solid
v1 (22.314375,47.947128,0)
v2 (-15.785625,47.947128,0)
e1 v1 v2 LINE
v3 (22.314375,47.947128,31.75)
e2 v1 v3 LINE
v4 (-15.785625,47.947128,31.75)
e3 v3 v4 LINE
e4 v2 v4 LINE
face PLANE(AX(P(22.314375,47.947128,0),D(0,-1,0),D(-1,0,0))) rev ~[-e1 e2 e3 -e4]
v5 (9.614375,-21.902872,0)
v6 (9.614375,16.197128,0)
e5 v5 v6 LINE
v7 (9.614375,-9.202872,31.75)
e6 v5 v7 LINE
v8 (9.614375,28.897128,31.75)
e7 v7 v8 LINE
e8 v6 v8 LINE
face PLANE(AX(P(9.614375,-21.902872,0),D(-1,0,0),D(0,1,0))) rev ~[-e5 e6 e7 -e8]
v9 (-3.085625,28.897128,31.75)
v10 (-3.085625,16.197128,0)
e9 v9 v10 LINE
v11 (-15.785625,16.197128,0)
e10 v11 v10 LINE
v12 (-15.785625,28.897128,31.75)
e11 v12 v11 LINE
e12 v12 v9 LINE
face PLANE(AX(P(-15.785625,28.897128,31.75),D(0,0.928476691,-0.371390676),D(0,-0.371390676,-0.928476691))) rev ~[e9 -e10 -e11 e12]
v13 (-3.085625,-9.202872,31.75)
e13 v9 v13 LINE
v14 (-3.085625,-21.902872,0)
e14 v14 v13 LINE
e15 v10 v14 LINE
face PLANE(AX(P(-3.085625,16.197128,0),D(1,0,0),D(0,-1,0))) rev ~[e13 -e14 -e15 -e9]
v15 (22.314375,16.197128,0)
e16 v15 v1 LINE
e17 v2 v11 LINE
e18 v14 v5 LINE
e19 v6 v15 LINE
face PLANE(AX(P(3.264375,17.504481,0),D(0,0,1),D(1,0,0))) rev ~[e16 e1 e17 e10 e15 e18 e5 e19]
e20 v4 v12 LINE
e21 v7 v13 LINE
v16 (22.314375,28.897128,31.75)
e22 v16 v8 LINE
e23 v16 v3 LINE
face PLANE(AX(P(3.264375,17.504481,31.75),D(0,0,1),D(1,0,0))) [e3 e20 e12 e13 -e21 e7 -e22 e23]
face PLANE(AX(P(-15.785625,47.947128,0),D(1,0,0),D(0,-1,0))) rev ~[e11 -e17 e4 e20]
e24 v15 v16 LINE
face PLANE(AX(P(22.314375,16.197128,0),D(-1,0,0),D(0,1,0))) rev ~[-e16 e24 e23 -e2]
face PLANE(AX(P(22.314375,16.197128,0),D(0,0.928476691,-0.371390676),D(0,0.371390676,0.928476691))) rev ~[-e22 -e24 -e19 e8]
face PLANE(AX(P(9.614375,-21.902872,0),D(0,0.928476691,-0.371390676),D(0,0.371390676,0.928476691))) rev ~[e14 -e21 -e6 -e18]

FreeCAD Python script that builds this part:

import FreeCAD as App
import Part
import Sketcher

V = App.Vector
Q = App.Units.Quantity


def add_polygon(sketch, points):
    """Adds a closed chain of lines whose ends are joined by coincident constraints."""
    first, n = sketch.GeometryCount, len(points)
    for a, b in zip(points, points[1:] + points[:1]):
        sketch.addGeometry(Part.LineSegment(App.Vector(*a, 0), App.Vector(*b, 0)), False)
    for i in range(n):
        sketch.addConstraint(Sketcher.Constraint("Coincident", first + i, 2, first + (i + 1) % n, 1))

doc = App.newDocument("Part")
body = doc.addObject("PartDesign::Body", "Body")

# Sketch on XY plane
sketch1 = doc.addObject("Sketcher::SketchObject", "Sketch")
body.addObject(sketch1)
sketch1.AttachmentSupport = (doc.XY_Plane, [""])
sketch1.MapMode = "FlatFace"
add_polygon(sketch1, [(22, 48), (-16, 48), (-16, 16), (-3, 16), (-3, -22), (10, -22), (10, 16), (22, 16)])  # lines 0-7
sketch1.addConstraint(Sketcher.Constraint("Horizontal", 0))
sketch1.addConstraint(Sketcher.Constraint("Vertical", 1))
sketch1.addConstraint(Sketcher.Constraint("Horizontal", 2))
sketch1.addConstraint(Sketcher.Constraint("Vertical", 3))
sketch1.addConstraint(Sketcher.Constraint("Horizontal", 4))
sketch1.addConstraint(Sketcher.Constraint("Vertical", 5))
sketch1.addConstraint(Sketcher.Constraint("Horizontal", 6))
sketch1.addConstraint(Sketcher.Constraint("Vertical", 7))
sketch1.addConstraint(Sketcher.Constraint("Horizontal", 2, 2, 5, 2))
sketch1.addConstraint(Sketcher.Constraint("Equal", 2, 4))
sketch1.addConstraint(Sketcher.Constraint("Equal", 4, 6))
sketch1.addConstraint(Sketcher.Constraint("Equal", 0, 3))
sketch1.addConstraint(Sketcher.Constraint("DistanceX", 0, 2, 0, 1, Q("1.5 in")))
sketch1.addConstraint(Sketcher.Constraint("DistanceY", 1, 2, 1, 1, Q("1.25 in")))
sketch1.addConstraint(Sketcher.Constraint("DistanceY", 3, 2, -1, 1, 21.902872))
sketch1.addConstraint(Sketcher.Constraint("DistanceX", 0, 2, -1, 1, 15.785625))
pad1 = doc.addObject("PartDesign::Pad", "Pad")
body.addObject(pad1)
pad1.Profile = sketch1
pad1.Length = Q("1.25 in")

# Sketch on YZ plane
sketch2 = doc.addObject("Sketcher::SketchObject", "Sketch001")
body.addObject(sketch2)
sketch2.AttachmentSupport = (doc.YZ_Plane, [""])
sketch2.MapMode = "FlatFace"
sketch2.AttachmentOffset = App.Placement(V(0, 0, 9.614375), App.Rotation())
add_polygon(sketch2, [(-22, 0), (-9, 32), (-22, 32)])  # lines 0-2
sketch2.addConstraint(Sketcher.Constraint("Horizontal", 1))
sketch2.addConstraint(Sketcher.Constraint("Vertical", 2))
sketch2.addConstraint(Sketcher.Constraint("PointOnObject", 2, 2, -1))
sketch2.addConstraint(Sketcher.Constraint("DistanceX", 1, 2, 1, 1, Q("0.5 in")))
sketch2.addConstraint(Sketcher.Constraint("DistanceY", 2, 2, 2, 1, Q("1.25 in")))
sketch2.addConstraint(Sketcher.Constraint("DistanceX", 0, 2, -1, 1, 9.202872))
pocket1 = doc.addObject("PartDesign::Pocket", "Pocket")
body.addObject(pocket1)
pocket1.Profile = sketch2
pocket1.Length = Q("0.5 in")

# Sketch on YZ plane
sketch3 = doc.addObject("Sketcher::SketchObject", "Sketch002")
body.addObject(sketch3)
sketch3.AttachmentSupport = (doc.YZ_Plane, [""])
sketch3.MapMode = "FlatFace"
sketch3.AttachmentOffset = App.Placement(V(0, 0, 22.314375), App.Rotation())
add_polygon(sketch3, [(16, 0), (29, 32), (16, 32)])  # lines 0-2
sketch3.addConstraint(Sketcher.Constraint("Horizontal", 1))
sketch3.addConstraint(Sketcher.Constraint("Vertical", 2))
sketch3.addConstraint(Sketcher.Constraint("PointOnObject", 2, 2, -1))
sketch3.addConstraint(Sketcher.Constraint("DistanceX", 1, 2, 1, 1, Q("0.5 in")))
sketch3.addConstraint(Sketcher.Constraint("DistanceY", 2, 2, 2, 1, Q("1.25 in")))
sketch3.addConstraint(Sketcher.Constraint("DistanceX", -1, 1, 0, 2, 28.897128))
pocket2 = doc.addObject("PartDesign::Pocket", "Pocket001")
body.addObject(pocket2)
pocket2.Profile = sketch3
pocket2.Length = Q("0.5 in")

# Sketch on YZ plane
sketch4 = doc.addObject("Sketcher::SketchObject", "Sketch003")
body.addObject(sketch4)
sketch4.AttachmentSupport = (doc.YZ_Plane, [""])
sketch4.MapMode = "FlatFace"
sketch4.AttachmentOffset = App.Placement(V(0, 0, -15.785625), App.Rotation())
add_polygon(sketch4, [(16, 32), (29, 32), (16, 0)])  # lines 0-2
sketch4.addConstraint(Sketcher.Constraint("Horizontal", 0))
sketch4.addConstraint(Sketcher.Constraint("Vertical", 2))
sketch4.addConstraint(Sketcher.Constraint("PointOnObject", 1, 2, -1))
sketch4.addConstraint(Sketcher.Constraint("DistanceX", 0, 1, 0, 2, Q("0.5 in")))
sketch4.addConstraint(Sketcher.Constraint("DistanceY", 2, 1, 2, 2, Q("1.25 in")))
sketch4.addConstraint(Sketcher.Constraint("DistanceX", -1, 1, 0, 2, 28.897128))
pocket3 = doc.addObject("PartDesign::Pocket", "Pocket002")
body.addObject(pocket3)
pocket3.Profile = sketch4
pocket3.Length = Q("0.5 in")
pocket3.Reversed = True

doc.recompute()
